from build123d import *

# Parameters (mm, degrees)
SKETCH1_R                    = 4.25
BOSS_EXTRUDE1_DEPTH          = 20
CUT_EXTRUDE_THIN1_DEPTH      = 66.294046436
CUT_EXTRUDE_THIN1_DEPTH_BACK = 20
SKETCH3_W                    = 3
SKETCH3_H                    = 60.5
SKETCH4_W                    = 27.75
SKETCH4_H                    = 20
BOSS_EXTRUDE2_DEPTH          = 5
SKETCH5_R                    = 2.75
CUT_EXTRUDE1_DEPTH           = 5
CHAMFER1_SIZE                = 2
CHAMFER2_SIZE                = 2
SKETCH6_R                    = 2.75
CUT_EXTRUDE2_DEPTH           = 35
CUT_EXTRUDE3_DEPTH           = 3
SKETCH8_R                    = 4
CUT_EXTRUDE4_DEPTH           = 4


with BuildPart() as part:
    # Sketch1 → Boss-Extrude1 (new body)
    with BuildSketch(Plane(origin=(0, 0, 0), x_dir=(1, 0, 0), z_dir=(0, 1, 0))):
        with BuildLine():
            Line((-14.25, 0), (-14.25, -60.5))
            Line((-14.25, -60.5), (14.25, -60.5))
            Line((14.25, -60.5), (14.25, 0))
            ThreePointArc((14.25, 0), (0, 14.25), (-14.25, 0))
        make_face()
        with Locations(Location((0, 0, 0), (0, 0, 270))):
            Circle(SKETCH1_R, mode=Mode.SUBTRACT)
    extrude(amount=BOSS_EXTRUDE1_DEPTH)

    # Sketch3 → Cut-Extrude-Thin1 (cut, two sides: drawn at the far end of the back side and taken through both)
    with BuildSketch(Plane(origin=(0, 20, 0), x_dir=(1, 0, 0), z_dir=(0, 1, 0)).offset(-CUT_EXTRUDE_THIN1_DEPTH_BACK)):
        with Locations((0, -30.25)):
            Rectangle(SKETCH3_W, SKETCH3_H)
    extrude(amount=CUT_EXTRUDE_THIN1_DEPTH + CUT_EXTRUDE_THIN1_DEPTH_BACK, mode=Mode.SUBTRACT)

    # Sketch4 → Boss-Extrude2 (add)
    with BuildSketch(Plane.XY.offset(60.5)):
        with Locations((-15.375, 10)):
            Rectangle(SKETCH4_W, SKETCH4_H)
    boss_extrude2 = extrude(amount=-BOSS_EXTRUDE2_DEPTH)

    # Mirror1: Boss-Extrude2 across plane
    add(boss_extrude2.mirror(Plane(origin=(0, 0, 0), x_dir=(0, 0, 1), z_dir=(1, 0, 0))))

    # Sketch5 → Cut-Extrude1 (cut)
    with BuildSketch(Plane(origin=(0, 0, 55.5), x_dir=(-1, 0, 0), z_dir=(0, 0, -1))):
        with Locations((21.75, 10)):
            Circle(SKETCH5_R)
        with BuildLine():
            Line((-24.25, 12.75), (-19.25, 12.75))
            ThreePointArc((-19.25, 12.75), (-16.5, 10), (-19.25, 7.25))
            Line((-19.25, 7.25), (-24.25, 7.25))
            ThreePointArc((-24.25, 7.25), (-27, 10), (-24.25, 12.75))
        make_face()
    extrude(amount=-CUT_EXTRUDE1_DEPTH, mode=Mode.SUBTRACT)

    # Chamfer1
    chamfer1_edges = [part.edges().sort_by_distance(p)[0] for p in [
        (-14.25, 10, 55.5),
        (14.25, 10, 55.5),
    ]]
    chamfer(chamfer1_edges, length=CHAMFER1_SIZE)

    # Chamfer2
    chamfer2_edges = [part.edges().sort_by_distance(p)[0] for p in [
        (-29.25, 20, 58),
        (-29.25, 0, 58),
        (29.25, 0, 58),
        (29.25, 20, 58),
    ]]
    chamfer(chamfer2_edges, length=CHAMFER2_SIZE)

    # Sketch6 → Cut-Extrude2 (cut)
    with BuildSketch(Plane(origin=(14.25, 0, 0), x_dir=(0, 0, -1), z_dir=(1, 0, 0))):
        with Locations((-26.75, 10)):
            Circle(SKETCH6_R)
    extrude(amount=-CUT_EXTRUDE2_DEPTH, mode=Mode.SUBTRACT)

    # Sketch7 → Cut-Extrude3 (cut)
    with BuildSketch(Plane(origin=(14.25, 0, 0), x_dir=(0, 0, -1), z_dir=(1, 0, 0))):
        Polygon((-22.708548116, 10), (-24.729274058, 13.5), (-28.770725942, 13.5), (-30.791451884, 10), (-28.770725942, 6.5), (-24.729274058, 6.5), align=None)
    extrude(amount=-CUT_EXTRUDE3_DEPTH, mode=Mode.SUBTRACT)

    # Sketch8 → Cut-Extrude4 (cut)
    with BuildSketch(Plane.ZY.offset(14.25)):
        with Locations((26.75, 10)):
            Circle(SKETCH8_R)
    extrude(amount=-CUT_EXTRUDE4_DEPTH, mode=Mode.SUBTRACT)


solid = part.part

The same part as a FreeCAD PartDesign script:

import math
import FreeCAD as App
import Part
import Sketcher
Q = App.Units.Quantity


def edges_at(feature, points):
    """Names of the edges that pass closest to the given points."""
    edges = feature.Shape.Edges
    near = lambda p: min(range(len(edges)), key=lambda i: edges[i].distToShape(Part.Vertex(*p))[0])
    return sorted({f"Edge{near(p) + 1}" for p in points})

doc = App.newDocument("Part")
body = doc.addObject("PartDesign::Body", "Body")

sketch1 = body.newObject("Sketcher::SketchObject", "Sketch")
sketch1.AttachmentSupport = (doc.getObject("XZ_Plane"), [""])
sketch1.MapMode = "FlatFace"
sketch1.addGeometry(Part.LineSegment(App.Vector(-14.2, 0, 0), App.Vector(-14.2, 60.5, 0)), False)
sketch1.addGeometry(Part.LineSegment(App.Vector(-14.2, 60.5, 0), App.Vector(14.2, 60.5, 0)), False)
sketch1.addGeometry(Part.LineSegment(App.Vector(14.2, 60.5, 0), App.Vector(14.2, 0, 0)), False)
sketch1.addGeometry(Part.ArcOfCircle(Part.Circle(App.Vector(0, 0, 0), App.Vector(0, 0, 1), 14.2), math.radians(180), math.radians(360)), False)
sketch1.addGeometry(Part.Circle(App.Vector(0, 0, 0), App.Vector(0, 0, 1), 4.2), False)
sketch1.addConstraint(Sketcher.Constraint("Coincident", 0, 2, 1, 1))
sketch1.addConstraint(Sketcher.Constraint("Coincident", 1, 2, 2, 1))
sketch1.addConstraint(Sketcher.Constraint("Tangent", 2, 2, 3, 2))
sketch1.addConstraint(Sketcher.Constraint("Tangent", 3, 1, 0, 1))
sketch1.addConstraint(Sketcher.Constraint("Vertical", 0))
sketch1.addConstraint(Sketcher.Constraint("Horizontal", 1))
sketch1.addConstraint(Sketcher.Constraint("Vertical", 2))
sketch1.addConstraint(Sketcher.Constraint("Coincident", 3, 3, -1, 1))
sketch1.addConstraint(Sketcher.Constraint("Coincident", 4, 3, -1, 1))
sketch1.addConstraint(Sketcher.Constraint("Diameter", 4, 8.5))
sketch1.addConstraint(Sketcher.Constraint("Radius", 3, 14.25))
sketch1.addConstraint(Sketcher.Constraint("DistanceY", 0, 1, 0, 2, 60.5))
pad1 = body.newObject("PartDesign::Pad", "Pad")
pad1.Profile = sketch1
pad1.Length = 20
pad1.Reversed = True

sketch2 = body.newObject("Sketcher::SketchObject", "Sketch001")
sketch2.AttachmentSupport = (doc.getObject("XZ_Plane"), [""])
sketch2.MapMode = "FlatFace"
sketch2.AttachmentOffset = App.Placement(App.Vector(0, 0, -20), App.Rotation())
sketch2.addGeometry(Part.LineSegment(App.Vector(-1.5, 0, 0), App.Vector(-1.5, 60.5, 0)), False)
sketch2.addGeometry(Part.LineSegment(App.Vector(-1.5, 60.5, 0), App.Vector(1.5, 60.5, 0)), False)
sketch2.addGeometry(Part.LineSegment(App.Vector(1.5, 60.5, 0), App.Vector(1.5, 0, 0)), False)
sketch2.addGeometry(Part.LineSegment(App.Vector(1.5, 0, 0), App.Vector(-1.5, 0, 0)), False)
sketch2.addConstraint(Sketcher.Constraint("Coincident", 0, 2, 1, 1))
sketch2.addConstraint(Sketcher.Constraint("Coincident", 1, 2, 2, 1))
sketch2.addConstraint(Sketcher.Constraint("Coincident", 2, 2, 3, 1))
sketch2.addConstraint(Sketcher.Constraint("Coincident", 3, 2, 0, 1))
sketch2.addConstraint(Sketcher.Constraint("Vertical", 0))
sketch2.addConstraint(Sketcher.Constraint("Horizontal", 1))
sketch2.addConstraint(Sketcher.Constraint("Vertical", 2))
sketch2.addConstraint(Sketcher.Constraint("Horizontal", 3))
sketch2.addConstraint(Sketcher.Constraint("Symmetric", 2, 2, 3, 2, -1, 1))
sketch2.addConstraint(Sketcher.Constraint("DistanceX", 1, 1, 1, 2, 3.0))
sketch2.addConstraint(Sketcher.Constraint("DistanceY", 0, 1, 0, 2, 60.5))
pocket1 = body.newObject("PartDesign::Pocket", "Pocket")
pocket1.Profile = sketch2
pocket1.Type = "ThroughAll"
pocket1.Midplane = True

sketch3 = body.newObject("Sketcher::SketchObject", "Sketch002")
sketch3.AttachmentSupport = (doc.getObject("XY_Plane"), [""])
sketch3.MapMode = "FlatFace"
sketch3.AttachmentOffset = App.Placement(App.Vector(0, 0, 60.5), App.Rotation())
sketch3.addGeometry(Part.LineSegment(App.Vector(-29, 20, 0), App.Vector(-29, 0, 0)), False)
sketch3.addGeometry(Part.LineSegment(App.Vector(-29, 0, 0), App.Vector(-2, 0, 0)), False)
sketch3.addGeometry(Part.LineSegment(App.Vector(-2, 0, 0), App.Vector(-2, 20, 0)), False)
sketch3.addGeometry(Part.LineSegment(App.Vector(-2, 20, 0), App.Vector(-29, 20, 0)), False)
sketch3.addConstraint(Sketcher.Constraint("Coincident", 0, 2, 1, 1))
sketch3.addConstraint(Sketcher.Constraint("Coincident", 1, 2, 2, 1))
sketch3.addConstraint(Sketcher.Constraint("Coincident", 2, 2, 3, 1))
sketch3.addConstraint(Sketcher.Constraint("Coincident", 3, 2, 0, 1))
sketch3.addConstraint(Sketcher.Constraint("Vertical", 0))
sketch3.addConstraint(Sketcher.Constraint("Horizontal", 1))
sketch3.addConstraint(Sketcher.Constraint("Vertical", 2))
sketch3.addConstraint(Sketcher.Constraint("Horizontal", 3))
sketch3.addConstraint(Sketcher.Constraint("PointOnObject", 0, 2, -1))
sketch3.addConstraint(Sketcher.Constraint("DistanceY", 0, 2, 0, 1, 20.0))
sketch3.addConstraint(Sketcher.Constraint("DistanceX", 1, 1, 1, 2, 27.75))
sketch3.addConstraint(Sketcher.Constraint("DistanceX", 1, 2, -1, 1, 1.5))
pad2 = body.newObject("PartDesign::Pad", "Pad001")
pad2.Profile = sketch3
pad2.Length = 5
pad2.Reversed = True
doc.recompute()

mirrored = body.newObject("PartDesign::Mirrored", "Mirrored")
mirrored.Originals = [pad2]
mirrored.MirrorPlane = (doc.getObject("YZ_Plane"), [""])
body.Tip = mirrored

sketch4 = body.newObject("Sketcher::SketchObject", "Sketch003")
sketch4.AttachmentSupport = (doc.getObject("XY_Plane"), [""])
sketch4.MapMode = "FlatFace"
sketch4.AttachmentOffset = App.Placement(App.Vector(0, 0, 55.5), App.Rotation())
sketch4.addGeometry(Part.Circle(App.Vector(-21.8, 10, 0), App.Vector(0, 0, 1), 2.8), False)
sketch4.addGeometry(Part.LineSegment(App.Vector(19.2, 12.8, 0), App.Vector(24.2, 12.8, 0)), False)
sketch4.addGeometry(Part.ArcOfCircle(Part.Circle(App.Vector(24.2, 10, 0), App.Vector(0, 0, 1), 2.8), math.radians(-90), math.radians(90)), False)
sketch4.addGeometry(Part.LineSegment(App.Vector(24.2, 7.2, 0), App.Vector(19.2, 7.2, 0)), False)
sketch4.addGeometry(Part.ArcOfCircle(Part.Circle(App.Vector(19.2, 10, 0), App.Vector(0, 0, 1), 2.8), math.radians(90), math.radians(270)), False)
sketch4.addConstraint(Sketcher.Constraint("Tangent", 1, 2, 2, 2))
sketch4.addConstraint(Sketcher.Constraint("Tangent", 2, 1, 3, 1))
sketch4.addConstraint(Sketcher.Constraint("Tangent", 3, 2, 4, 2))
sketch4.addConstraint(Sketcher.Constraint("Tangent", 4, 1, 1, 1))
sketch4.addConstraint(Sketcher.Constraint("Horizontal", 1))
sketch4.addConstraint(Sketcher.Constraint("Horizontal", 3))
sketch4.addConstraint(Sketcher.Constraint("Equal", 0, 2))
sketch4.addConstraint(Sketcher.Constraint("Horizontal", 0, 3, 2, 3))
sketch4.addConstraint(Sketcher.Constraint("Diameter", 0, 5.5))
sketch4.addConstraint(Sketcher.Constraint("DistanceX", 1, 1, 1, 2, 5.0))
sketch4.addConstraint(Sketcher.Constraint("DistanceY", -1, 1, 0, 3, 10.0))
sketch4.addConstraint(Sketcher.Constraint("DistanceX", 0, 3, 2, 3, 46.0))
sketch4.addConstraint(Sketcher.Constraint("DistanceX", 0, 3, -1, 1, 21.75))
pocket2 = body.newObject("PartDesign::Pocket", "Pocket001")
pocket2.Profile = sketch4
pocket2.Length = 5
pocket2.Reversed = True
doc.recompute()

chamfer = body.newObject("PartDesign::Chamfer", "Chamfer")
chamfer.Base = (pocket2, edges_at(pocket2, [(-14.25, 10, 55.5), (14.25, 10, 55.5)]))
chamfer.Size = 2
doc.recompute()

chamfer2 = body.newObject("PartDesign::Chamfer", "Chamfer001")
chamfer2.Base = (chamfer, edges_at(chamfer, [
    (-29.25, 20, 58),
    (-29.25, 0, 58),
    (29.25, 0, 58),
    (29.25, 20, 58),
]))
chamfer2.Size = 2

sketch5 = body.newObject("Sketcher::SketchObject", "Sketch004")
sketch5.AttachmentSupport = (doc.getObject("YZ_Plane"), [""])
sketch5.MapMode = "FlatFace"
sketch5.AttachmentOffset = App.Placement(App.Vector(0, 0, 14.25), App.Rotation())
sketch5.addGeometry(Part.Circle(App.Vector(10, 26.8, 0), App.Vector(0, 0, 1), 2.8), False)
sketch5.addConstraint(Sketcher.Constraint("Diameter", 0, 5.5))
sketch5.addConstraint(Sketcher.Constraint("DistanceX", -1, 1, 0, 3, 10.0))
sketch5.addConstraint(Sketcher.Constraint("DistanceY", -1, 1, 0, 3, 26.75))
pocket3 = body.newObject("PartDesign::Pocket", "Pocket002")
pocket3.Profile = sketch5
pocket3.Length = 35

sketch6 = body.newObject("Sketcher::SketchObject", "Sketch005")
sketch6.AttachmentSupport = (doc.getObject("YZ_Plane"), [""])
sketch6.MapMode = "FlatFace"
sketch6.AttachmentOffset = App.Placement(App.Vector(0, 0, 14.25), App.Rotation())
sketch6.addGeometry(Part.LineSegment(App.Vector(10, 22.7, 0), App.Vector(13.5, 24.7, 0)), False)
sketch6.addGeometry(Part.LineSegment(App.Vector(13.5, 24.7, 0), App.Vector(13.5, 28.8, 0)), False)
sketch6.addGeometry(Part.LineSegment(App.Vector(13.5, 28.8, 0), App.Vector(10, 30.8, 0)), False)
sketch6.addGeometry(Part.LineSegment(App.Vector(10, 30.8, 0), App.Vector(6.5, 28.8, 0)), False)
sketch6.addGeometry(Part.LineSegment(App.Vector(6.5, 28.8, 0), App.Vector(6.5, 24.7, 0)), False)
sketch6.addGeometry(Part.LineSegment(App.Vector(6.5, 24.7, 0), App.Vector(10, 22.7, 0)), False)
sketch6.addConstraint(Sketcher.Constraint("Coincident", 0, 2, 1, 1))
sketch6.addConstraint(Sketcher.Constraint("Coincident", 1, 2, 2, 1))
sketch6.addConstraint(Sketcher.Constraint("Coincident", 2, 2, 3, 1))
sketch6.addConstraint(Sketcher.Constraint("Coincident", 3, 2, 4, 1))
sketch6.addConstraint(Sketcher.Constraint("Coincident", 4, 2, 5, 1))
sketch6.addConstraint(Sketcher.Constraint("Coincident", 5, 2, 0, 1))
sketch6.addConstraint(Sketcher.Constraint("Vertical", 1))
sketch6.addConstraint(Sketcher.Constraint("Vertical", 4))
sketch6.addConstraint(Sketcher.Constraint("Parallel", 0, 3))
sketch6.addConstraint(Sketcher.Constraint("Parallel", 2, 5))
sketch6.addConstraint(Sketcher.Constraint("Horizontal", 1, 2, 3, 2))
sketch6.addConstraint(Sketcher.Constraint("Horizontal", 0, 2, 4, 2))
sketch6.addConstraint(Sketcher.Constraint("Vertical", 2, 2, 5, 2))
sketch6.addConstraint(Sketcher.Constraint("Angle", 0, Q("30 deg")))
sketch6.addConstraint(Sketcher.Constraint("DistanceX", -1, 1, 2, 2, 10.0))
sketch6.addConstraint(Sketcher.Constraint("DistanceX", 3, 2, 1, 2, 7.0))
sketch6.addConstraint(Sketcher.Constraint("DistanceY", 1, 1, 1, 2, 4.041452))
sketch6.addConstraint(Sketcher.Constraint("DistanceY", -1, 1, 2, 2, 30.791452))
pocket4 = body.newObject("PartDesign::Pocket", "Pocket003")
pocket4.Profile = sketch6
pocket4.Length = 3

sketch7 = body.newObject("Sketcher::SketchObject", "Sketch006")
sketch7.AttachmentSupport = (doc.getObject("YZ_Plane"), [""])
sketch7.MapMode = "FlatFace"
sketch7.AttachmentOffset = App.Placement(App.Vector(0, 0, -14.25), App.Rotation())
sketch7.addGeometry(Part.Circle(App.Vector(10, 26.8, 0), App.Vector(0, 0, 1), 4), False)
sketch7.addConstraint(Sketcher.Constraint("Diameter", 0, 8.0))
sketch7.addConstraint(Sketcher.Constraint("DistanceX", -1, 1, 0, 3, 10.0))
sketch7.addConstraint(Sketcher.Constraint("DistanceY", -1, 1, 0, 3, 26.75))
pocket5 = body.newObject("PartDesign::Pocket", "Pocket004")
pocket5.Profile = sketch7
pocket5.Length = 4
pocket5.Reversed = True

doc.recompute()
